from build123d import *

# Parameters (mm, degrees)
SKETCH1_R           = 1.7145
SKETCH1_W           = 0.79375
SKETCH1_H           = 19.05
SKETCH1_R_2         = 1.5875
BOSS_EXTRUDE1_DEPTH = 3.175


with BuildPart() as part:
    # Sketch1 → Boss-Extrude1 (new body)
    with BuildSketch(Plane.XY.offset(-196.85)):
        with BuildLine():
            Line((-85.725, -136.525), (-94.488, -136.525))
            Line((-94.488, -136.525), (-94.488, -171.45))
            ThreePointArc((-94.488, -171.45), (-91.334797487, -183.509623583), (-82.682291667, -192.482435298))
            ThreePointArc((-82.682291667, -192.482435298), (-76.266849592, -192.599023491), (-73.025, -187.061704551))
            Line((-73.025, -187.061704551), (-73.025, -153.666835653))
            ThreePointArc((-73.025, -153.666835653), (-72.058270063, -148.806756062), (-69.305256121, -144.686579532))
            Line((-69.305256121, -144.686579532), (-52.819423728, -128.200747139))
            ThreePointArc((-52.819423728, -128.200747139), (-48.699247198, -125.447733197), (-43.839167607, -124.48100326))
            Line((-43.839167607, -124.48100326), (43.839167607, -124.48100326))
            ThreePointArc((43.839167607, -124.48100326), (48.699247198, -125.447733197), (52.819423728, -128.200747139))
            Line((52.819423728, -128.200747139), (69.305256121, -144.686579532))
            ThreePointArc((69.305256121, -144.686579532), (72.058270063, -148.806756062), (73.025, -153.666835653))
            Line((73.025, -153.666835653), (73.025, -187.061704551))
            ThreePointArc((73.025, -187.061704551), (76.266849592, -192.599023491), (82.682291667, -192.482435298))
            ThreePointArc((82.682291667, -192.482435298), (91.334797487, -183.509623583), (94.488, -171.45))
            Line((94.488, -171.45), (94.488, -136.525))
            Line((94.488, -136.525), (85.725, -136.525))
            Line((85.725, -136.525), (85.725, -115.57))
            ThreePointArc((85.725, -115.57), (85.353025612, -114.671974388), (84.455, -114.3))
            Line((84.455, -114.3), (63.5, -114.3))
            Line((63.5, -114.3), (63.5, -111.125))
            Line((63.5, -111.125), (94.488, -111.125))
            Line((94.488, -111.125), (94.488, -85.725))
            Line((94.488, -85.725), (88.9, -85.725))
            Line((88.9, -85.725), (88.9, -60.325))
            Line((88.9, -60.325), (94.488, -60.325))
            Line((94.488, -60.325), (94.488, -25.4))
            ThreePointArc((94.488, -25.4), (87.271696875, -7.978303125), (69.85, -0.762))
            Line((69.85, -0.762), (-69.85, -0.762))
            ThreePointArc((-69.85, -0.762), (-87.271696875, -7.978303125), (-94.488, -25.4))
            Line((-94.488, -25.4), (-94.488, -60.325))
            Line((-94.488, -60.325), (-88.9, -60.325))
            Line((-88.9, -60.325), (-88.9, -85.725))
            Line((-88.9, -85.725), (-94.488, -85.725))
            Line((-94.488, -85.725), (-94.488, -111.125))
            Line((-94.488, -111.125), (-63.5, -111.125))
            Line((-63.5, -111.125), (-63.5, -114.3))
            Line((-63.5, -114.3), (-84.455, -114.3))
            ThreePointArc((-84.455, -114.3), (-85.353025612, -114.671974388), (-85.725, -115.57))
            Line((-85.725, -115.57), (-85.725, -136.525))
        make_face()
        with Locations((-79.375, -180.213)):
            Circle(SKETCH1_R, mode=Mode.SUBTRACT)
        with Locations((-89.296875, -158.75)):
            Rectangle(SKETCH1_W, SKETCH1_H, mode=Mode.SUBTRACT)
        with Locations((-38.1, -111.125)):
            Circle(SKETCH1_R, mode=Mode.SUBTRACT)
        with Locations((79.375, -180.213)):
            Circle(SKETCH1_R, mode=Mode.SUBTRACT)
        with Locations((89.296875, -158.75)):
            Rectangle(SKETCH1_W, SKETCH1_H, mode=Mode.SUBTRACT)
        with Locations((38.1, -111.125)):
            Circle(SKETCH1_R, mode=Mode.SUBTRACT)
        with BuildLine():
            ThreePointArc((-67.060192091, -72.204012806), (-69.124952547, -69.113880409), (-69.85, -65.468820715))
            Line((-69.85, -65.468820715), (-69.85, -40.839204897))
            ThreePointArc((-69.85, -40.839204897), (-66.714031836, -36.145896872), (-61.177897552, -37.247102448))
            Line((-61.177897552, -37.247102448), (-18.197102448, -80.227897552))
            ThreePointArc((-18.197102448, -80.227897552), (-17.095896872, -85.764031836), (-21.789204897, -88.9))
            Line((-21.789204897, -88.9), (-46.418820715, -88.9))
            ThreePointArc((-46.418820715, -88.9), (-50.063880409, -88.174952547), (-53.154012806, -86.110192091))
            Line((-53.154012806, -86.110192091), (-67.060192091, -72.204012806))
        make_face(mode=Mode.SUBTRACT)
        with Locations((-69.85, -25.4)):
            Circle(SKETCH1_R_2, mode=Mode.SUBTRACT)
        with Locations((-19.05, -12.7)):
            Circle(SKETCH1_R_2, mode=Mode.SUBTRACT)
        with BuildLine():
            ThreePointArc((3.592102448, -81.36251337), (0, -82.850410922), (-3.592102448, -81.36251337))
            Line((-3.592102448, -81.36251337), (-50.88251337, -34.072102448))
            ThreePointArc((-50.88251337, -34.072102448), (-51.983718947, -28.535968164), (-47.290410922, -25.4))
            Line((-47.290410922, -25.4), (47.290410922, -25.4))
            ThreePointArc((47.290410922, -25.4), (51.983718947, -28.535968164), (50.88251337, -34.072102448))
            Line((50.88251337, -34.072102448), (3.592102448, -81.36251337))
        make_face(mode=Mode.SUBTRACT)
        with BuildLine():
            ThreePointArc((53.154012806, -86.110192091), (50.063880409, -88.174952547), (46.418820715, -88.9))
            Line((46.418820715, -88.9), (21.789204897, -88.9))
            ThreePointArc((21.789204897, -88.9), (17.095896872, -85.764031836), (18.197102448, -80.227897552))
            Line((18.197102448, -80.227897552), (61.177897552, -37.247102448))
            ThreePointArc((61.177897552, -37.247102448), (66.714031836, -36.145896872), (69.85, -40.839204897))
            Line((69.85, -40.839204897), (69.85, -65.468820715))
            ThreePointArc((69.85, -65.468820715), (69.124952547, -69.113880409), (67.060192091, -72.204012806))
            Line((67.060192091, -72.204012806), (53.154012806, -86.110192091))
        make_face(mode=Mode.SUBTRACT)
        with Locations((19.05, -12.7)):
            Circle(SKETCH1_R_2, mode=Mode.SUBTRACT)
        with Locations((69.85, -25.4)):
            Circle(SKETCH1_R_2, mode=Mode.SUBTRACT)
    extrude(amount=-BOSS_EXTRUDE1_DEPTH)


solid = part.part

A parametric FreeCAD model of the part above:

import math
import FreeCAD as App
import Part
import Sketcher
from FreeCAD import Vector
Q = App.Units.Quantity


def add_polygon(sketch, points):
    """Adds a closed chain of lines whose ends are joined by coincident constraints."""
    first, n = sketch.GeometryCount, len(points)
    for a, b in zip(points, points[1:] + points[:1]):
        sketch.addGeometry(Part.LineSegment(App.Vector(*a, 0), App.Vector(*b, 0)), False)
    for i in range(n):
        sketch.addConstraint(Sketcher.Constraint("Coincident", first + i, 2, first + (i + 1) % n, 1))

doc = App.newDocument("Part")
body = doc.addObject("PartDesign::Body", "Body")

# Sketch on XY plane
sketch1 = body.newObject("Sketcher::SketchObject", "Sketch")
sketch1.AttachmentSupport = (doc.getObject("XY_Plane"), [""])
sketch1.MapMode = "FlatFace"
sketch1.AttachmentOffset = App.Placement(Vector(0, 0, -7.75 * 25.4), App.Rotation())
sketch1.addGeometry(Part.LineSegment(Vector(-85.7, -136.5, 0), Vector(-94.5, -136.5, 0)), False)  # 0
sketch1.addGeometry(Part.LineSegment(Vector(-94.5, -136.5, 0), Vector(-94.5, -171.4, 0)), False)  # 1
sketch1.addGeometry(Part.ArcOfCircle(Part.Circle(Vector(-69.9, -171.5, 0), Vector(0, 0, 1), 24.6), math.radians(180), math.radians(239)), False)  # 2
sketch1.addGeometry(Part.ArcOfCircle(Part.Circle(Vector(-79.4, -187.1, 0), Vector(0, 0, 1), 6.3), math.radians(-121), math.radians(0)), False)  # 3
sketch1.addGeometry(Part.LineSegment(Vector(-73, -187.1, 0), Vector(-73, -153.7, 0)), False)  # 4
sketch1.addGeometry(Part.ArcOfCircle(Part.Circle(Vector(-60.3, -153.7, 0), Vector(0, 0, 1), 12.7), math.radians(135), math.radians(180)), False)  # 5
sketch1.addGeometry(Part.LineSegment(Vector(-69.3, -144.7, 0), Vector(-52.8, -128.2, 0)), False)  # 6
sketch1.addGeometry(Part.ArcOfCircle(Part.Circle(Vector(-43.8, -137.2, 0), Vector(0, 0, 1), 12.7), math.radians(90), math.radians(135)), False)  # 7
sketch1.addGeometry(Part.LineSegment(Vector(-43.8, -124.5, 0), Vector(43.8, -124.5, 0)), False)  # 8
sketch1.addGeometry(Part.ArcOfCircle(Part.Circle(Vector(43.8, -137.2, 0), Vector(0, 0, 1), 12.7), math.radians(45), math.radians(90)), False)  # 9
sketch1.addGeometry(Part.LineSegment(Vector(52.8, -128.2, 0), Vector(69.3, -144.7, 0)), False)  # 10
sketch1.addGeometry(Part.ArcOfCircle(Part.Circle(Vector(60.3, -153.7, 0), Vector(0, 0, 1), 12.7), math.radians(0), math.radians(45)), False)  # 11
sketch1.addGeometry(Part.LineSegment(Vector(73, -153.7, 0), Vector(73, -187.1, 0)), False)  # 12
sketch1.addGeometry(Part.ArcOfCircle(Part.Circle(Vector(79.4, -187.1, 0), Vector(0, 0, 1), 6.3), math.radians(180), math.radians(301)), False)  # 13
sketch1.addGeometry(Part.ArcOfCircle(Part.Circle(Vector(69.9, -171.5, 0), Vector(0, 0, 1), 24.6), math.radians(-59), math.radians(0)), False)  # 14
sketch1.addGeometry(Part.LineSegment(Vector(94.5, -171.4, 0), Vector(94.5, -136.5, 0)), False)  # 15
sketch1.addGeometry(Part.LineSegment(Vector(94.5, -136.5, 0), Vector(85.7, -136.5, 0)), False)  # 16
sketch1.addGeometry(Part.LineSegment(Vector(85.7, -136.5, 0), Vector(85.7, -115.6, 0)), False)  # 17
sketch1.addGeometry(Part.ArcOfCircle(Part.Circle(Vector(84.5, -115.6, 0), Vector(0, 0, 1), 1.3), math.radians(0), math.radians(90)), False)  # 18
sketch1.addGeometry(Part.LineSegment(Vector(84.5, -114.3, 0), Vector(63.5, -114.3, 0)), False)  # 19
sketch1.addGeometry(Part.LineSegment(Vector(63.5, -114.3, 0), Vector(63.5, -111.1, 0)), False)  # 20
sketch1.addGeometry(Part.LineSegment(Vector(63.5, -111.1, 0), Vector(94.5, -111.1, 0)), False)  # 21
sketch1.addGeometry(Part.LineSegment(Vector(94.5, -111.1, 0), Vector(94.5, -85.7, 0)), False)  # 22
sketch1.addGeometry(Part.LineSegment(Vector(94.5, -85.7, 0), Vector(88.9, -85.7, 0)), False)  # 23
sketch1.addGeometry(Part.LineSegment(Vector(88.9, -85.7, 0), Vector(88.9, -60.3, 0)), False)  # 24
sketch1.addGeometry(Part.LineSegment(Vector(88.9, -60.3, 0), Vector(94.5, -60.3, 0)), False)  # 25
sketch1.addGeometry(Part.LineSegment(Vector(94.5, -60.3, 0), Vector(94.5, -25.4, 0)), False)  # 26
sketch1.addGeometry(Part.ArcOfCircle(Part.Circle(Vector(69.8, -25.4, 0), Vector(0, 0, 1), 24.6), math.radians(0), math.radians(90)), False)  # 27
sketch1.addGeometry(Part.LineSegment(Vector(69.8, -0.8, 0), Vector(-69.8, -0.8, 0)), False)  # 28
sketch1.addGeometry(Part.ArcOfCircle(Part.Circle(Vector(-69.8, -25.4, 0), Vector(0, 0, 1), 24.6), math.radians(90), math.radians(180)), False)  # 29
sketch1.addGeometry(Part.LineSegment(Vector(-94.5, -25.4, 0), Vector(-94.5, -60.3, 0)), False)  # 30
sketch1.addGeometry(Part.LineSegment(Vector(-94.5, -60.3, 0), Vector(-88.9, -60.3, 0)), False)  # 31
sketch1.addGeometry(Part.LineSegment(Vector(-88.9, -60.3, 0), Vector(-88.9, -85.7, 0)), False)  # 32
sketch1.addGeometry(Part.LineSegment(Vector(-88.9, -85.7, 0), Vector(-94.5, -85.7, 0)), False)  # 33
sketch1.addGeometry(Part.LineSegment(Vector(-94.5, -85.7, 0), Vector(-94.5, -111.1, 0)), False)  # 34
sketch1.addGeometry(Part.LineSegment(Vector(-94.5, -111.1, 0), Vector(-63.5, -111.1, 0)), False)  # 35
sketch1.addGeometry(Part.LineSegment(Vector(-63.5, -111.1, 0), Vector(-63.5, -114.3, 0)), False)  # 36
sketch1.addGeometry(Part.LineSegment(Vector(-63.5, -114.3, 0), Vector(-84.5, -114.3, 0)), False)  # 37
sketch1.addGeometry(Part.ArcOfCircle(Part.Circle(Vector(-84.5, -115.6, 0), Vector(0, 0, 1), 1.3), math.radians(90), math.radians(180)), False)  # 38
sketch1.addGeometry(Part.LineSegment(Vector(-85.7, -115.6, 0), Vector(-85.7, -136.5, 0)), False)  # 39
sketch1.addGeometry(Part.Circle(Vector(-79.4, -180.2, 0), Vector(0, 0, 1), 1.7), False)  # 40
add_polygon(sketch1, [(-88.9, -168.3), (-89.7, -168.3), (-89.7, -149.2), (-88.9, -149.2)])  # lines 41-44
sketch1.addGeometry(Part.Circle(Vector(-38.1, -111.1, 0), Vector(0, 0, 1), 1.7), False)  # 45
sketch1.addGeometry(Part.Circle(Vector(79.4, -180.2, 0), Vector(0, 0, 1), 1.7), False)  # 46
add_polygon(sketch1, [(89.7, -168.3), (88.9, -168.3), (88.9, -149.2), (89.7, -149.2)])  # lines 47-50
sketch1.addGeometry(Part.Circle(Vector(38.1, -111.1, 0), Vector(0, 0, 1), 1.7), False)  # 51
sketch1.addGeometry(Part.LineSegment(Vector(-53.2, -86.1, 0), Vector(-67.1, -72.2, 0)), False)  # 52
sketch1.addGeometry(Part.ArcOfCircle(Part.Circle(Vector(-60.3, -65.5, 0), Vector(0, 0, 1), 9.5), math.radians(180), math.radians(225)), False)  # 53
sketch1.addGeometry(Part.LineSegment(Vector(-69.8, -65.5, 0), Vector(-69.8, -40.8, 0)), False)  # 54
sketch1.addGeometry(Part.ArcOfCircle(Part.Circle(Vector(-64.8, -40.8, 0), Vector(0, 0, 1), 5.1), math.radians(45), math.radians(180)), False)  # 55
sketch1.addGeometry(Part.LineSegment(Vector(-61.2, -37.2, 0), Vector(-18.2, -80.2, 0)), False)  # 56
sketch1.addGeometry(Part.ArcOfCircle(Part.Circle(Vector(-21.8, -83.8, 0), Vector(0, 0, 1), 5.1), math.radians(-90), math.radians(45)), False)  # 57
sketch1.addGeometry(Part.LineSegment(Vector(-21.8, -88.9, 0), Vector(-46.4, -88.9, 0)), False)  # 58
sketch1.addGeometry(Part.ArcOfCircle(Part.Circle(Vector(-46.4, -79.4, 0), Vector(0, 0, 1), 9.5), math.radians(-135), math.radians(-90)), False)  # 59
sketch1.addGeometry(Part.LineSegment(Vector(50.9, -34.1, 0), Vector(3.6, -81.4, 0)), False)  # 60
sketch1.addGeometry(Part.ArcOfCircle(Part.Circle(Vector(0, -77.8, 0), Vector(0, 0, 1), 5.1), math.radians(-135), math.radians(-45)), False)  # 61
sketch1.addGeometry(Part.LineSegment(Vector(-3.6, -81.4, 0), Vector(-50.9, -34.1, 0)), False)  # 62
sketch1.addGeometry(Part.ArcOfCircle(Part.Circle(Vector(-47.3, -30.5, 0), Vector(0, 0, 1), 5.1), math.radians(90), math.radians(225)), False)  # 63
sketch1.addGeometry(Part.LineSegment(Vector(-47.3, -25.4, 0), Vector(47.3, -25.4, 0)), False)  # 64
sketch1.addGeometry(Part.ArcOfCircle(Part.Circle(Vector(47.3, -30.5, 0), Vector(0, 0, 1), 5.1), math.radians(-45), math.radians(90)), False)  # 65
sketch1.addGeometry(Part.Circle(Vector(-69.8, -25.4, 0), Vector(0, 0, 1), 1.6), False)  # 66
sketch1.addGeometry(Part.Circle(Vector(-19.1, -12.7, 0), Vector(0, 0, 1), 1.6), False)  # 67
sketch1.addGeometry(Part.LineSegment(Vector(67.1, -72.2, 0), Vector(53.2, -86.1, 0)), False)  # 68
sketch1.addGeometry(Part.ArcOfCircle(Part.Circle(Vector(46.4, -79.4, 0), Vector(0, 0, 1), 9.5), math.radians(-90), math.radians(-45)), False)  # 69
sketch1.addGeometry(Part.LineSegment(Vector(46.4, -88.9, 0), Vector(21.8, -88.9, 0)), False)  # 70
sketch1.addGeometry(Part.ArcOfCircle(Part.Circle(Vector(21.8, -83.8, 0), Vector(0, 0, 1), 5.1), math.radians(135), math.radians(270)), False)  # 71
sketch1.addGeometry(Part.LineSegment(Vector(18.2, -80.2, 0), Vector(61.2, -37.2, 0)), False)  # 72
sketch1.addGeometry(Part.ArcOfCircle(Part.Circle(Vector(64.8, -40.8, 0), Vector(0, 0, 1), 5.1), math.radians(0), math.radians(135)), False)  # 73
sketch1.addGeometry(Part.LineSegment(Vector(69.8, -40.8, 0), Vector(69.8, -65.5, 0)), False)  # 74
sketch1.addGeometry(Part.ArcOfCircle(Part.Circle(Vector(60.3, -65.5, 0), Vector(0, 0, 1), 9.5), math.radians(-45), math.radians(0)), False)  # 75
sketch1.addGeometry(Part.Circle(Vector(19.1, -12.7, 0), Vector(0, 0, 1), 1.6), False)  # 76
sketch1.addGeometry(Part.Circle(Vector(69.8, -25.4, 0), Vector(0, 0, 1), 1.6), False)  # 77
sketch1.addConstraint([
    Sketcher.Constraint("Coincident", 0, 2, 1, 1),
    Sketcher.Constraint("Tangent", 1, 2, 2, 1),
    Sketcher.Constraint("Tangent", 2, 2, 3, 1),
    Sketcher.Constraint("Tangent", 3, 2, 4, 1),
    Sketcher.Constraint("Tangent", 4, 2, 5, 2),
    Sketcher.Constraint("Tangent", 5, 1, 6, 1),
    Sketcher.Constraint("Tangent", 6, 2, 7, 2),
    Sketcher.Constraint("Tangent", 7, 1, 8, 1),
    Sketcher.Constraint("Tangent", 8, 2, 9, 2),
    Sketcher.Constraint("Tangent", 9, 1, 10, 1),
    Sketcher.Constraint("Tangent", 10, 2, 11, 2),
    Sketcher.Constraint("Tangent", 11, 1, 12, 1),
    Sketcher.Constraint("Tangent", 12, 2, 13, 1),
    Sketcher.Constraint("Tangent", 13, 2, 14, 1),
    Sketcher.Constraint("Tangent", 14, 2, 15, 1),
    Sketcher.Constraint("Coincident", 15, 2, 16, 1),
    Sketcher.Constraint("Coincident", 16, 2, 17, 1),
    Sketcher.Constraint("Tangent", 17, 2, 18, 1),
    Sketcher.Constraint("Tangent", 18, 2, 19, 1),
    Sketcher.Constraint("Coincident", 19, 2, 20, 1),
    Sketcher.Constraint("Coincident", 20, 2, 21, 1),
    Sketcher.Constraint("Coincident", 21, 2, 22, 1),
    Sketcher.Constraint("Coincident", 22, 2, 23, 1),
    Sketcher.Constraint("Coincident", 23, 2, 24, 1),
    Sketcher.Constraint("Coincident", 24, 2, 25, 1),
    Sketcher.Constraint("Coincident", 25, 2, 26, 1),
    Sketcher.Constraint("Tangent", 26, 2, 27, 1),
    Sketcher.Constraint("Tangent", 27, 2, 28, 1),
    Sketcher.Constraint("Tangent", 28, 2, 29, 1),
    Sketcher.Constraint("Tangent", 29, 2, 30, 1),
    Sketcher.Constraint("Coincident", 30, 2, 31, 1),
    Sketcher.Constraint("Coincident", 31, 2, 32, 1),
    Sketcher.Constraint("Coincident", 32, 2, 33, 1),
    Sketcher.Constraint("Coincident", 33, 2, 34, 1),
    Sketcher.Constraint("Coincident", 34, 2, 35, 1),
    Sketcher.Constraint("Coincident", 35, 2, 36, 1),
    Sketcher.Constraint("Coincident", 36, 2, 37, 1),
    Sketcher.Constraint("Tangent", 37, 2, 38, 1),
    Sketcher.Constraint("Tangent", 38, 2, 39, 1),
    Sketcher.Constraint("Coincident", 39, 2, 0, 1),
    Sketcher.Constraint("Tangent", 52, 2, 53, 2),
    Sketcher.Constraint("Tangent", 53, 1, 54, 1),
    Sketcher.Constraint("Tangent", 54, 2, 55, 2),
    Sketcher.Constraint("Tangent", 55, 1, 56, 1),
    Sketcher.Constraint("Tangent", 56, 2, 57, 2),
    Sketcher.Constraint("Tangent", 57, 1, 58, 1),
    Sketcher.Constraint("Tangent", 58, 2, 59, 2),
    Sketcher.Constraint("Tangent", 59, 1, 52, 1),
    Sketcher.Constraint("Tangent", 60, 2, 61, 2),
    Sketcher.Constraint("Tangent", 61, 1, 62, 1),
    Sketcher.Constraint("Tangent", 62, 2, 63, 2),
    Sketcher.Constraint("Tangent", 63, 1, 64, 1),
    Sketcher.Constraint("Tangent", 64, 2, 65, 2),
    Sketcher.Constraint("Tangent", 65, 1, 60, 1),
    Sketcher.Constraint("Tangent", 68, 2, 69, 2),
    Sketcher.Constraint("Tangent", 69, 1, 70, 1),
    Sketcher.Constraint("Tangent", 70, 2, 71, 2),
    Sketcher.Constraint("Tangent", 71, 1, 72, 1),
    Sketcher.Constraint("Tangent", 72, 2, 73, 2),
    Sketcher.Constraint("Tangent", 73, 1, 74, 1),
    Sketcher.Constraint("Tangent", 74, 2, 75, 2),
    Sketcher.Constraint("Tangent", 75, 1, 68, 1),
    Sketcher.Constraint("Horizontal", 0),
    Sketcher.Constraint("Vertical", 1),
    Sketcher.Constraint("Vertical", 4),
    Sketcher.Constraint("Horizontal", 8),
    Sketcher.Constraint("Vertical", 12),
    Sketcher.Constraint("Vertical", 15),
    Sketcher.Constraint("Horizontal", 16),
    Sketcher.Constraint("Vertical", 17),
    Sketcher.Constraint("Horizontal", 19),
    Sketcher.Constraint("Vertical", 20),
    Sketcher.Constraint("Horizontal", 21),
    Sketcher.Constraint("Vertical", 22),
    Sketcher.Constraint("Horizontal", 23),
    Sketcher.Constraint("Vertical", 24),
    Sketcher.Constraint("Horizontal", 25),
    Sketcher.Constraint("Vertical", 26),
    Sketcher.Constraint("Horizontal", 28),
    Sketcher.Constraint("Vertical", 30),
    Sketcher.Constraint("Horizontal", 31),
    Sketcher.Constraint("Vertical", 32),
    Sketcher.Constraint("Horizontal", 33),
    Sketcher.Constraint("Vertical", 34),
    Sketcher.Constraint("Horizontal", 35),
    Sketcher.Constraint("Vertical", 36),
    Sketcher.Constraint("Horizontal", 37),
    Sketcher.Constraint("Vertical", 39),
    Sketcher.Constraint("Horizontal", 41),
    Sketcher.Constraint("Vertical", 42),
    Sketcher.Constraint("Horizontal", 43),
    Sketcher.Constraint("Vertical", 44),
    Sketcher.Constraint("Horizontal", 47),
    Sketcher.Constraint("Vertical", 48),
    Sketcher.Constraint("Horizontal", 49),
    Sketcher.Constraint("Vertical", 50),
    Sketcher.Constraint("Vertical", 54),
    Sketcher.Constraint("Horizontal", 58),
    Sketcher.Constraint("Horizontal", 64),
    Sketcher.Constraint("Horizontal", 70),
    Sketcher.Constraint("Vertical", 74),
    Sketcher.Constraint("Coincident", 66, 3, 29, 3),
    Sketcher.Constraint("Coincident", 77, 3, 27, 3),
    Sketcher.Constraint("Equal", 5, 7),
    Sketcher.Constraint("Equal", 7, 9),
    Sketcher.Constraint("Equal", 9, 11),
    Sketcher.Constraint("Equal", 3, 13),
    Sketcher.Constraint("Equal", 2, 14),
    Sketcher.Constraint("Equal", 14, 27),
    Sketcher.Constraint("Equal", 27, 29),
    Sketcher.Constraint("Equal", 18, 38),
    Sketcher.Constraint("Equal", 40, 45),
    Sketcher.Constraint("Equal", 45, 46),
    Sketcher.Constraint("Equal", 46, 51),
    Sketcher.Constraint("Equal", 55, 57),
    Sketcher.Constraint("Equal", 53, 59),
    Sketcher.Constraint("Equal", 57, 61),
    Sketcher.Constraint("Equal", 61, 63),
    Sketcher.Constraint("Equal", 63, 65),
    Sketcher.Constraint("Equal", 66, 67),
    Sketcher.Constraint("Equal", 59, 69),
    Sketcher.Constraint("Equal", 65, 71),
    Sketcher.Constraint("Equal", 71, 73),
    Sketcher.Constraint("Equal", 69, 75),
    Sketcher.Constraint("Equal", 67, 76),
    Sketcher.Constraint("Equal", 76, 77),
    Sketcher.Constraint("Symmetric", 5, 3, 11, 3, -2),
    Sketcher.Constraint("Symmetric", 2, 3, 14, 3, -2),
    Sketcher.Constraint("Symmetric", 18, 3, 38, 3, -2),
    Sketcher.Constraint("Symmetric", 40, 3, 46, 3, -2),
    Sketcher.Constraint("Symmetric", 45, 3, 51, 3, -2),
    Sketcher.Constraint("Symmetric", 59, 3, 69, 3, -2),
    Sketcher.Constraint("Symmetric", 55, 3, 73, 3, -2),
    Sketcher.Constraint("Symmetric", 67, 3, 76, 3, -2),
    Sketcher.Constraint("Symmetric", 25, 2, 30, 2, -2),
    Sketcher.Constraint("Symmetric", 23, 2, 32, 2, -2),
    Sketcher.Constraint("Symmetric", 21, 2, 34, 2, -2),
    Sketcher.Constraint("Symmetric", 44, 2, 47, 2, -2),
    Sketcher.Constraint("Symmetric", 42, 2, 49, 2, -2),
    Sketcher.Constraint("Symmetric", 60, 2, 61, 1, -2),
    Sketcher.Constraint("Perpendicular", 6, 10),
    Sketcher.Constraint("Parallel", 10, 52),
    Sketcher.Constraint("Parallel", 52, 56),
    Sketcher.Constraint("Perpendicular", 56, 60),
    Sketcher.Constraint("Perpendicular", 60, 62),
    Sketcher.Constraint("Perpendicular", 62, 68),
    Sketcher.Constraint("Parallel", 68, 72),
    Sketcher.Constraint("Horizontal", 0, 2, 15, 2),
    Sketcher.Constraint("Horizontal", 51, 3, 20, 2),
    Sketcher.Constraint("Horizontal", 29, 2, 63, 1),
    Sketcher.Constraint("Vertical", 14, 3, 27, 3),
    Sketcher.Constraint("Vertical", 3, 3, 40, 3),
    Sketcher.Constraint("Vertical", 5, 3, 53, 3),
    Sketcher.Constraint("Vertical", 15, 2, 21, 2),
    Sketcher.Constraint("Vertical", 32, 2, 43, 2),
    Sketcher.Constraint("Vertical", 28, 2, 53, 1),
    Sketcher.Constraint("Equal", 21, 35),
    Sketcher.Constraint("Equal", 37, 17),
    Sketcher.Constraint("Equal", 22, 24),
    Sketcher.Constraint("Equal", 15, 26),
    Sketcher.Constraint("Radius", 5, Q("0.5 in")),
    Sketcher.Constraint("Radius", 55, Q("0.2 in")),
    Sketcher.Constraint("DistanceY", 22, 1, 22, 2, Q("1 in")),
    Sketcher.Constraint("Radius", 2, Q("0.97 in")),
    Sketcher.Constraint("Radius", 3, Q("0.25 in")),
    Sketcher.Constraint("Radius", 18, Q("0.05 in")),
    Sketcher.Constraint("Diameter", 40, Q("0.135 in")),
    Sketcher.Constraint("Diameter", 66, Q("0.125 in")),
    Sketcher.Constraint("DistanceX", 28, 2, 28, 1, Q("5.5 in")),
    Sketcher.Constraint("DistanceY", 27, 3, -1, 1, Q("1 in")),
    Sketcher.Constraint("Radius", 53, Q("0.375 in")),
    Sketcher.Constraint("DistanceX", 21, 1, 21, 2, Q("1.22 in")),
    Sketcher.Constraint("DistanceX", 23, 2, 23, 1, Q("0.22 in")),
    Sketcher.Constraint("DistanceY", 42, 1, 42, 2, Q("0.75 in")),
    Sketcher.Constraint("DistanceX", 45, 3, -1, 1, Q("1.5 in")),
    Sketcher.Constraint("DistanceY", 57, 3, -1, 1, Q("3.3 in")),
    Sketcher.Constraint("DistanceY", 67, 3, -1, 1, Q("0.5 in")),
    Sketcher.Constraint("DistanceY", 18, 2, -1, 1, Q("4.5 in")),
    Sketcher.Constraint("DistanceX", 0, 2, 0, 1, Q("0.345 in")),
    Sketcher.Constraint("DistanceX", 41, 2, 41, 1, Q("0.03125 in")),
    Sketcher.Constraint("DistanceY", 1, 2, 1, 1, Q("1.375 in")),
    Sketcher.Constraint("DistanceX", 67, 3, -1, 1, Q("0.75 in")),
    Sketcher.Constraint("DistanceY", 40, 3, -1, 1, Q("7.095 in")),
    Sketcher.Constraint("DistanceY", 41, 2, -1, 1, Q("6.625 in")),
    Sketcher.Constraint("DistanceX", 64, 1, 64, 2, 94.580822),
    Sketcher.Constraint("DistanceY", 4, 1, 4, 2, 33.394869),
    Sketcher.Constraint("DistanceX", 8, 1, 8, 2, 87.678335),
    Sketcher.Constraint("DistanceX", 58, 2, 58, 1, 24.629616),
    Sketcher.Constraint("DistanceY", 53, 3, -1, 1, 65.468821),
])
pad1 = body.newObject("PartDesign::Pad", "Pad")
pad1.Profile = sketch1
pad1.Length = Q("0.125 in")
pad1.Reversed = True

doc.recompute()
